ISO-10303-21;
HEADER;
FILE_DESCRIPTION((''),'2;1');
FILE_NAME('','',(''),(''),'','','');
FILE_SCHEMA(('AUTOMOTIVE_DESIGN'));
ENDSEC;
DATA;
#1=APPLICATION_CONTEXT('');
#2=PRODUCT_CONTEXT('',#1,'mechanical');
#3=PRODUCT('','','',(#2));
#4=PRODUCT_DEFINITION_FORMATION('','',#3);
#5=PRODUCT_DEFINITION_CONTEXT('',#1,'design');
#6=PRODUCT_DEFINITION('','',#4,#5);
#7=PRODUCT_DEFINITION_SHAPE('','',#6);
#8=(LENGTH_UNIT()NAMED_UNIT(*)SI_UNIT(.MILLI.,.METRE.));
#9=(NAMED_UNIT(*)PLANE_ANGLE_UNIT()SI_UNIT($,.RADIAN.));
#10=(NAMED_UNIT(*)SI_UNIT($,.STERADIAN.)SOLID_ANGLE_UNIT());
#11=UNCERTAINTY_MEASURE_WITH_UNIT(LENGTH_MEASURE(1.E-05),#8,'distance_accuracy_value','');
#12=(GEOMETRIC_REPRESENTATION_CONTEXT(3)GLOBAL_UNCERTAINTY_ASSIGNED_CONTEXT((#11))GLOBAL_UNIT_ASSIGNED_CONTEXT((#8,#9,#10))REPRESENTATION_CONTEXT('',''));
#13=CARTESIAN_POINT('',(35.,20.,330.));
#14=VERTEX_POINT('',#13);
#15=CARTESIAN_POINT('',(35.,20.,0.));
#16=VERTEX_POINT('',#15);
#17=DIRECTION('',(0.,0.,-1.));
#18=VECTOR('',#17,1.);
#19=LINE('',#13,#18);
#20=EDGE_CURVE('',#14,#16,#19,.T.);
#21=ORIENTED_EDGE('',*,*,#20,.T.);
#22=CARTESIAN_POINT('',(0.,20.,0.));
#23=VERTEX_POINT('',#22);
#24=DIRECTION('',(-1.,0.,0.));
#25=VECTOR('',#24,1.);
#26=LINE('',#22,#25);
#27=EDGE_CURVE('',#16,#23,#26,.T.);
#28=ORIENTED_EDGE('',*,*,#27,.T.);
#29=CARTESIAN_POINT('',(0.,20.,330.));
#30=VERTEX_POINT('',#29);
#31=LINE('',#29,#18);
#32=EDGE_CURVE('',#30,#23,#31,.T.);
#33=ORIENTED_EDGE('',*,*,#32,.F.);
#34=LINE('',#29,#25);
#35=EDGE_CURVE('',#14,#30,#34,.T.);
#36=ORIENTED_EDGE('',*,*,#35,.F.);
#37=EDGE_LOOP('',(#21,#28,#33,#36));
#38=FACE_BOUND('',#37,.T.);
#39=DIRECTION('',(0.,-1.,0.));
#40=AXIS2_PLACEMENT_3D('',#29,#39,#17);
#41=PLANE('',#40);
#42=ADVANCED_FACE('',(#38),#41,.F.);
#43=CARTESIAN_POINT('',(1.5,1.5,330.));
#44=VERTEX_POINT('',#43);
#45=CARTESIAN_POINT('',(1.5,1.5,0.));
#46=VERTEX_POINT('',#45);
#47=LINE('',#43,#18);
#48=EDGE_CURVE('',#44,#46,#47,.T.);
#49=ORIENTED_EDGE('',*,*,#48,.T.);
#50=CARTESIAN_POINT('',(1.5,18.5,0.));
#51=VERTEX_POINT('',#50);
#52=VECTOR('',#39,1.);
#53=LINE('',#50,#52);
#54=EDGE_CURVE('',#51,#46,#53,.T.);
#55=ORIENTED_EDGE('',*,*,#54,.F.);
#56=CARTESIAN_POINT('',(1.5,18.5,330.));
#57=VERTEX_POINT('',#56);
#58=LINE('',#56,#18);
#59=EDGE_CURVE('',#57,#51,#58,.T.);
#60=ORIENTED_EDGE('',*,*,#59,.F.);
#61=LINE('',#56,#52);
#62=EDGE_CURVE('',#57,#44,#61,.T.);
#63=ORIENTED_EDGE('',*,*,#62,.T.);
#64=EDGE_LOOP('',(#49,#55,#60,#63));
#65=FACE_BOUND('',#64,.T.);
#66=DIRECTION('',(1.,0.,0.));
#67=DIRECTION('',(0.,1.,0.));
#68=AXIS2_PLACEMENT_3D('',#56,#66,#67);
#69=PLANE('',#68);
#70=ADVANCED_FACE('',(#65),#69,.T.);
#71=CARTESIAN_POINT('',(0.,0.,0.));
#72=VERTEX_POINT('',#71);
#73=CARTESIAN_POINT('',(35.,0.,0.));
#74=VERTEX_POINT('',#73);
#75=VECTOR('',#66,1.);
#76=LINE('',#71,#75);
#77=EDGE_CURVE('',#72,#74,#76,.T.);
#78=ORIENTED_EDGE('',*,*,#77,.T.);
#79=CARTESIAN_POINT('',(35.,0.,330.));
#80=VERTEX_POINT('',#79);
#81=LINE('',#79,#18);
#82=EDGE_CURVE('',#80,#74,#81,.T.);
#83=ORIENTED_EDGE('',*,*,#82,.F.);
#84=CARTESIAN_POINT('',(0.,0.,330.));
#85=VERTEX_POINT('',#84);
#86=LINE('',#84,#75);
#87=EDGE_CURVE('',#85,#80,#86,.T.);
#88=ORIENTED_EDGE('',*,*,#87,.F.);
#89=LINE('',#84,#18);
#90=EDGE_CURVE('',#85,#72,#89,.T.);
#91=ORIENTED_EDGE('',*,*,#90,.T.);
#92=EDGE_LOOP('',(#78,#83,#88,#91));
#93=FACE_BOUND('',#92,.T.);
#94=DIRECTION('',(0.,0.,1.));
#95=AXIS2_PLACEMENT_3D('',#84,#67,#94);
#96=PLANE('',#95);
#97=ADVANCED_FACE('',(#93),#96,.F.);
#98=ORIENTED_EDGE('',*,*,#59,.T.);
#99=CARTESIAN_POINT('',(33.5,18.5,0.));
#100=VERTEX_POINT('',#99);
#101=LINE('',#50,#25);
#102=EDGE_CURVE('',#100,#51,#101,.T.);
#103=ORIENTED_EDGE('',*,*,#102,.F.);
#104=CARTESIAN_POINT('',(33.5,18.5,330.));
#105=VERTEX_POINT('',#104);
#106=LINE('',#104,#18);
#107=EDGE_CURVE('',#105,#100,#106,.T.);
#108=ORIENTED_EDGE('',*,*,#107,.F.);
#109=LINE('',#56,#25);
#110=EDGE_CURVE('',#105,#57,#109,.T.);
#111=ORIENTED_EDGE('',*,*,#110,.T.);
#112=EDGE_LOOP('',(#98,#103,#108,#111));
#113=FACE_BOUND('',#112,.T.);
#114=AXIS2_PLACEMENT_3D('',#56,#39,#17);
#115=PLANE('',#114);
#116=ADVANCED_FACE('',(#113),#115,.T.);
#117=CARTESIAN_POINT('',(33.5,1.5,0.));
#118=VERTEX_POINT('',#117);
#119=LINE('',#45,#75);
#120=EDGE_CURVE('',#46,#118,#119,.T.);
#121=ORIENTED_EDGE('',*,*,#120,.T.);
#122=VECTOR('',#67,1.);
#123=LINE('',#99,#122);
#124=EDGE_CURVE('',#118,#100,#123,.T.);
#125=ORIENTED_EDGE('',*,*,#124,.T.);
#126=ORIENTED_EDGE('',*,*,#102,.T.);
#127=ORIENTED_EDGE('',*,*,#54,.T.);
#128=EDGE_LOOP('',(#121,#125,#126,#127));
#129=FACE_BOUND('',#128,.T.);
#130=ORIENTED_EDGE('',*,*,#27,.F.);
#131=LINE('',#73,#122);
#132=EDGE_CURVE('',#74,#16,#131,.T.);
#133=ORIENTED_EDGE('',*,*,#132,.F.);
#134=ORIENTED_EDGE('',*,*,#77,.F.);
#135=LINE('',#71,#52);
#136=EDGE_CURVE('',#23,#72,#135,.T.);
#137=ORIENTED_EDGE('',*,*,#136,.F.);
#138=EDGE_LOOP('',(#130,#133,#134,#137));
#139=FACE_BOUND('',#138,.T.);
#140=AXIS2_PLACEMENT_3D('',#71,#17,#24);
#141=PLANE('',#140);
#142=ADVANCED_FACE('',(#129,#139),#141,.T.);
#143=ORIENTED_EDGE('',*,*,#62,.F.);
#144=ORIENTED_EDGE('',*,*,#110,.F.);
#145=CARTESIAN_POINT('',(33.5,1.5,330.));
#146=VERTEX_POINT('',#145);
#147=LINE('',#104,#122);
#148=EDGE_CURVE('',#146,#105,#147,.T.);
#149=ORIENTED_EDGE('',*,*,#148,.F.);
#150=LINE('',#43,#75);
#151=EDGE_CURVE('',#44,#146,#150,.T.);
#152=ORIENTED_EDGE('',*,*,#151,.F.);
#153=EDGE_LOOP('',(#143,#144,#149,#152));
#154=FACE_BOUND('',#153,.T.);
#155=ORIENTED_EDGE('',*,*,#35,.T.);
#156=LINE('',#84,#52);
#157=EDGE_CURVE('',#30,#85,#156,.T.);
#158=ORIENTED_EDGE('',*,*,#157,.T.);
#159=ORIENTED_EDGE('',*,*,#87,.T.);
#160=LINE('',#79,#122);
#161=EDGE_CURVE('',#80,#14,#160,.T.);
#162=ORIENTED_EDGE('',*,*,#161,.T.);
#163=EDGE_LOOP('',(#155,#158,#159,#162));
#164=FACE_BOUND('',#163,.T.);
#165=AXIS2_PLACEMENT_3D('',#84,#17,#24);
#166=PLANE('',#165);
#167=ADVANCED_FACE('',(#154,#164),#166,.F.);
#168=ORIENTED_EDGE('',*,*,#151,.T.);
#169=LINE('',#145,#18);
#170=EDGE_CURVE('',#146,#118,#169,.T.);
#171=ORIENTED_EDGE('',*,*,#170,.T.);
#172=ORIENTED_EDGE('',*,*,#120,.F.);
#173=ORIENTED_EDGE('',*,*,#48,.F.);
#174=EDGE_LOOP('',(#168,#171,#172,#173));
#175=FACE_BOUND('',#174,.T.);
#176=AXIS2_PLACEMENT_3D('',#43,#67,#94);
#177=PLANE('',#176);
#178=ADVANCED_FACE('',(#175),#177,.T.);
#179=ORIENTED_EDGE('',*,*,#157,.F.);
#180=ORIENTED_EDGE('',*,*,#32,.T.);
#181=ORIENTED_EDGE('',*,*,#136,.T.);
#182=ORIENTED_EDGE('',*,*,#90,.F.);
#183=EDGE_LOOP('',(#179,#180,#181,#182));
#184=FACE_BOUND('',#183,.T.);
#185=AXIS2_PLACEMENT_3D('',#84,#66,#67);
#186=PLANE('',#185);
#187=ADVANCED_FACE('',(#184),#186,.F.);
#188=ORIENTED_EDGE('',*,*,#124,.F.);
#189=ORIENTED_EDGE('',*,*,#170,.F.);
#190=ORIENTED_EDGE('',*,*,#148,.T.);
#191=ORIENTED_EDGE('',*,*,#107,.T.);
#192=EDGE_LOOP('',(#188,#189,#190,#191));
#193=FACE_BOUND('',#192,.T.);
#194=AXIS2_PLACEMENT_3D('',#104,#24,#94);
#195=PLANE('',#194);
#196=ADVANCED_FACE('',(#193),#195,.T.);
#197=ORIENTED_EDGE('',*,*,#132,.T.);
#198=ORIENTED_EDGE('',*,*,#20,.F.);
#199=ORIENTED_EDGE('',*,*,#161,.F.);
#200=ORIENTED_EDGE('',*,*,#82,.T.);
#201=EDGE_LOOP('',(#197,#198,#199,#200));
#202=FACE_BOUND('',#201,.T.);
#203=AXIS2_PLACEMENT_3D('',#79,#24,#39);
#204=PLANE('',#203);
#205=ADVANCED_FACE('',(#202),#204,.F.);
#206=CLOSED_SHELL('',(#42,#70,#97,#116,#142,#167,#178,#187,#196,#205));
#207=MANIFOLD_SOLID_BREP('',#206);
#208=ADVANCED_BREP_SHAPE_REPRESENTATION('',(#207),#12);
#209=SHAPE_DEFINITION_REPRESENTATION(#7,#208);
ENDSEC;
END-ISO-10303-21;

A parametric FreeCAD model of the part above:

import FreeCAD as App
import Part
import Sketcher

V = App.Vector


def add_polygon(sketch, points):
    """Adds a closed chain of lines whose ends are joined by coincident constraints."""
    first, n = sketch.GeometryCount, len(points)
    for a, b in zip(points, points[1:] + points[:1]):
        sketch.addGeometry(Part.LineSegment(App.Vector(*a, 0), App.Vector(*b, 0)), False)
    for i in range(n):
        sketch.addConstraint(Sketcher.Constraint("Coincident", first + i, 2, first + (i + 1) % n, 1))

doc = App.newDocument("Part")
params = doc.addObject("Spreadsheet::Sheet", "Params")
for row, (alias, value) in enumerate([
    ("sketch1_width", "35 mm"),
    ("sketch1_width2", "32 mm"),
    ("sketch1_height", "20 mm"),
    ("sketch1_height2", "17 mm"),
    ("pad1_length", "330 mm"),
], start=1):
    params.set(f"A{row}", alias)
    params.set(f"B{row}", "=" + value)
    params.setAlias(f"B{row}", alias)

body = doc.addObject("PartDesign::Body", "Body")

# Sketch on XY plane
sketch1 = body.newObject("Sketcher::SketchObject", "Sketch")
sketch1.AttachmentSupport = (doc.getObject("XY_Plane"), [""])
sketch1.MapMode = "FlatFace"
add_polygon(sketch1, [(0, 20), (0, 0), (35, 0), (35, 20)])  # lines 0-3
add_polygon(sketch1, [(34, 2), (2, 2), (2, 18), (34, 18)])  # lines 4-7
sketch1.addConstraint([
    Sketcher.Constraint("Vertical", 0),
    Sketcher.Constraint("Horizontal", 1),
    Sketcher.Constraint("Vertical", 2),
    Sketcher.Constraint("Horizontal", 3),
    Sketcher.Constraint("Horizontal", 4),
    Sketcher.Constraint("Vertical", 5),
    Sketcher.Constraint("Horizontal", 6),
    Sketcher.Constraint("Vertical", 7),
    Sketcher.Constraint("Coincident", 0, 2, -1, 1),
    Sketcher.Constraint("DistanceX", 1, 1, 1, 2, 35.0),
    Sketcher.Constraint("DistanceX", 4, 2, 4, 1, 32.0),
    Sketcher.Constraint("DistanceY", 0, 2, 0, 1, 20.0),
    Sketcher.Constraint("DistanceY", 5, 1, 5, 2, 17.0),
    Sketcher.Constraint("DistanceX", -1, 1, 4, 2, 1.5),
    Sketcher.Constraint("DistanceY", -1, 1, 4, 2, 1.5),
])
sketch1.setExpression("Constraints[17]", "Params.sketch1_width")
sketch1.setExpression("Constraints[18]", "Params.sketch1_width2")
sketch1.setExpression("Constraints[19]", "Params.sketch1_height")
sketch1.setExpression("Constraints[20]", "Params.sketch1_height2")
pad1 = body.newObject("PartDesign::Pad", "Pad")
pad1.Profile = sketch1
pad1.setExpression("Length", "Params.pad1_length")

doc.recompute()
